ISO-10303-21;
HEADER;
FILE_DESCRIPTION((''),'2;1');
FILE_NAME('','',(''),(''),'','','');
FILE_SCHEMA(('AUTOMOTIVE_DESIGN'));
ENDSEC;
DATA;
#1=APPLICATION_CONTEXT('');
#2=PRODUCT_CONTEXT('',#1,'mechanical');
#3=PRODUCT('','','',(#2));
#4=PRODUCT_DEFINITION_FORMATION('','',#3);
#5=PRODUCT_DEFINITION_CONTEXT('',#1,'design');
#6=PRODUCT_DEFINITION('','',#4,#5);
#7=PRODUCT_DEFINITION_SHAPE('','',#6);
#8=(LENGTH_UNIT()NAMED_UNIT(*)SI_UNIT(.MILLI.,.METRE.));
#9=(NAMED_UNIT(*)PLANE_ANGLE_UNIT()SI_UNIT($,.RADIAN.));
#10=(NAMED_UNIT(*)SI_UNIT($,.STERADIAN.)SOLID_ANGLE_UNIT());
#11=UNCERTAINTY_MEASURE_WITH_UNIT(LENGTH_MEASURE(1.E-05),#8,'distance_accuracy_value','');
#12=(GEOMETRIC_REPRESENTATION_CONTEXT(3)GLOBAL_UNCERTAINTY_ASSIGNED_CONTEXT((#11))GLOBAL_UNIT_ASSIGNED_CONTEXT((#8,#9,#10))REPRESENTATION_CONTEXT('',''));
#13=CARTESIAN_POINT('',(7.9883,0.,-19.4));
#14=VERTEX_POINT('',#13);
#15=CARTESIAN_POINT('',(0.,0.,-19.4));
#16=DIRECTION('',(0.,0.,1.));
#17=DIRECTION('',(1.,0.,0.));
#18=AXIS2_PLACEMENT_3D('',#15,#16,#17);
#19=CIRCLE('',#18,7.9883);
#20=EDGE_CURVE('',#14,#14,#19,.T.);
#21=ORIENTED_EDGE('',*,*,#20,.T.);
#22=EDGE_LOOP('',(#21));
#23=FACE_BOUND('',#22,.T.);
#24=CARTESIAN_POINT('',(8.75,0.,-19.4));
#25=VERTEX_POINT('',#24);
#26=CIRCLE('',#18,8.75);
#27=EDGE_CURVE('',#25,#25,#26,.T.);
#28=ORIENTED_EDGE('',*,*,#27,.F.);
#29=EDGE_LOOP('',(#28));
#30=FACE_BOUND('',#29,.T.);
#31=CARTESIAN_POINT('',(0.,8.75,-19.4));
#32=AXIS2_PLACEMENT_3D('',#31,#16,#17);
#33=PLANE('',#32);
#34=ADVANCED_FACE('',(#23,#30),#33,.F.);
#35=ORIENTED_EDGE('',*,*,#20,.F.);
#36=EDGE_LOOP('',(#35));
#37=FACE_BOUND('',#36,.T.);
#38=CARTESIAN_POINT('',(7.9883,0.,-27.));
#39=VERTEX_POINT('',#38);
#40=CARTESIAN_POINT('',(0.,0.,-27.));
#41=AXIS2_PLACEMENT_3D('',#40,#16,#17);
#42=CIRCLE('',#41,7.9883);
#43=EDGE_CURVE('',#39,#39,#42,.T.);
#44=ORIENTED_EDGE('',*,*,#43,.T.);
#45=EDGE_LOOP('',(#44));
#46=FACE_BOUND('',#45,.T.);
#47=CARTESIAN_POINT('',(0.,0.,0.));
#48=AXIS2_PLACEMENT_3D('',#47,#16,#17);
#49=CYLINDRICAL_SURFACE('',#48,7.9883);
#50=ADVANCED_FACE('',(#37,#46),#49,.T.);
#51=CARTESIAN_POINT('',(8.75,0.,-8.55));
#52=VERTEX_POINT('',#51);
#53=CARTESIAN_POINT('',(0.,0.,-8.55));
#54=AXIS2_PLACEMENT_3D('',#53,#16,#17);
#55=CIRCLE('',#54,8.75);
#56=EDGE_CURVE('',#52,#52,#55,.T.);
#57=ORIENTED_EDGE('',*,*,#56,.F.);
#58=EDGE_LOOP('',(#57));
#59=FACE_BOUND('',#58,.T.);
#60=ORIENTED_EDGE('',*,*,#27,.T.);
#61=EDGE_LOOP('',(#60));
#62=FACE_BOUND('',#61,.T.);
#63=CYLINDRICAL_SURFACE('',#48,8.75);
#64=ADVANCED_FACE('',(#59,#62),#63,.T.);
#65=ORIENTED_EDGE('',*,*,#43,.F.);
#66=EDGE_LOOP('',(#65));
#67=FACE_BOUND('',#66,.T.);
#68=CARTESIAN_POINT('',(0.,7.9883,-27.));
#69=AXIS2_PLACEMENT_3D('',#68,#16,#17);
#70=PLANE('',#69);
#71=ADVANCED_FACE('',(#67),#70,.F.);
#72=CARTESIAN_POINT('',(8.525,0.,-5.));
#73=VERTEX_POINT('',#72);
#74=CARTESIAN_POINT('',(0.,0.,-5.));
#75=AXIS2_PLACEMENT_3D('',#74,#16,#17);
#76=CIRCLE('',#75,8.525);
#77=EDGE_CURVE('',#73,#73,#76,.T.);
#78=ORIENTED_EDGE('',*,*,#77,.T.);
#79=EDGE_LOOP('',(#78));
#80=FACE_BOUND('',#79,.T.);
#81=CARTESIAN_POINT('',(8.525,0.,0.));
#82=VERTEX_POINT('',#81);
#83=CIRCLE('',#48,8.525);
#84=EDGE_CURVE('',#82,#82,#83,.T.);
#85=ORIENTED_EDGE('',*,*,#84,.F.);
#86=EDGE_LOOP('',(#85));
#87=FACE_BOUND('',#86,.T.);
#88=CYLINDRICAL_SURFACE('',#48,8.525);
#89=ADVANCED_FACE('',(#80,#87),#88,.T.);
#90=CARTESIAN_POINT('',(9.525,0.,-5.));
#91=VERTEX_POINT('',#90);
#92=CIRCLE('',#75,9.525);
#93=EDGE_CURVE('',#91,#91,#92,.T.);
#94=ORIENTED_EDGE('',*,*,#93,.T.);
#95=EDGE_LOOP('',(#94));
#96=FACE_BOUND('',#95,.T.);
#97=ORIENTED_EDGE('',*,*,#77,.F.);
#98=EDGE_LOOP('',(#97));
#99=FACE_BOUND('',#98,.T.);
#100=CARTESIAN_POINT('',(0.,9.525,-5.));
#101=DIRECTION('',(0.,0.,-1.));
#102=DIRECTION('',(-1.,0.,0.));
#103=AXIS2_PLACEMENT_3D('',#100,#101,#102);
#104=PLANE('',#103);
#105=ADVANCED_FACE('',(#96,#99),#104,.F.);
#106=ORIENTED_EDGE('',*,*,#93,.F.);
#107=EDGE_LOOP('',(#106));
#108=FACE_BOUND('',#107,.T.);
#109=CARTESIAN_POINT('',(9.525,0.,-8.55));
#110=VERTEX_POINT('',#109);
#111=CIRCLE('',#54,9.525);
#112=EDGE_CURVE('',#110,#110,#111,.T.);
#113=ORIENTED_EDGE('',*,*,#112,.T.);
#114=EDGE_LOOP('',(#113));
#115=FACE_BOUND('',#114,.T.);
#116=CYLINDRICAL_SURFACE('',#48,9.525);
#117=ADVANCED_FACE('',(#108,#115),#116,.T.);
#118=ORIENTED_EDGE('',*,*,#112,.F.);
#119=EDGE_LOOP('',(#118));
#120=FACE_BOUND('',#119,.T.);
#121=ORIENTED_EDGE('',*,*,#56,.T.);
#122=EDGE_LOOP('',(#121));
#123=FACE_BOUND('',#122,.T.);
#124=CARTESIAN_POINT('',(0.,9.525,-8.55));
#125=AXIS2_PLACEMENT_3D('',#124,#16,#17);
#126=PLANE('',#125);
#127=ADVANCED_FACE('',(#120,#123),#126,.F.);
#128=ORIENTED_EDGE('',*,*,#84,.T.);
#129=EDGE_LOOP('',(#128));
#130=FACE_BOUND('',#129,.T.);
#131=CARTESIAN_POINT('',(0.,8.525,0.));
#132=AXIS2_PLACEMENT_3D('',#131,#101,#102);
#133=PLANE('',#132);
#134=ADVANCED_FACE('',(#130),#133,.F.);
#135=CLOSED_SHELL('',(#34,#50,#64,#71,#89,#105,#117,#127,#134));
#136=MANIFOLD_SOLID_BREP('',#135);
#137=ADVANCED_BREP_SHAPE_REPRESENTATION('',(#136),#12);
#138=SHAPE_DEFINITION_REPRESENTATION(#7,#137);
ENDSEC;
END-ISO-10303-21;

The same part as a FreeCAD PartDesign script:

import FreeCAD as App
import Part
import Sketcher

V = App.Vector
Q = App.Units.Quantity


def add_polygon(sketch, points):
    """Adds a closed chain of lines whose ends are joined by coincident constraints."""
    first, n = sketch.GeometryCount, len(points)
    for a, b in zip(points, points[1:] + points[:1]):
        sketch.addGeometry(Part.LineSegment(App.Vector(*a, 0), App.Vector(*b, 0)), False)
    for i in range(n):
        sketch.addConstraint(Sketcher.Constraint("Coincident", first + i, 2, first + (i + 1) % n, 1))

doc = App.newDocument("Part")
body = doc.addObject("PartDesign::Body", "Body")

# Sketch on YZ plane
sketch1 = doc.addObject("Sketcher::SketchObject", "Sketch")
body.addObject(sketch1)
sketch1.AttachmentSupport = (doc.YZ_Plane, [""])
sketch1.MapMode = "FlatFace"
add_polygon(sketch1, [(0, 0), (0, -27), (8, -27), (8, -19.4), (8.8, -19.4), (8.8, -8.6), (9.5, -8.6), (9.5, -5), (8.5, -5), (8.5, 0)])  # lines 0-9
sketch1.addConstraint(Sketcher.Constraint("Vertical", 0))
sketch1.addConstraint(Sketcher.Constraint("Horizontal", 1))
sketch1.addConstraint(Sketcher.Constraint("Vertical", 2))
sketch1.addConstraint(Sketcher.Constraint("Horizontal", 3))
sketch1.addConstraint(Sketcher.Constraint("Vertical", 4))
sketch1.addConstraint(Sketcher.Constraint("Horizontal", 5))
sketch1.addConstraint(Sketcher.Constraint("Vertical", 6))
sketch1.addConstraint(Sketcher.Constraint("Horizontal", 7))
sketch1.addConstraint(Sketcher.Constraint("Vertical", 8))
sketch1.addConstraint(Sketcher.Constraint("Horizontal", 9))
sketch1.addConstraint(Sketcher.Constraint("Coincident", 9, 2, -1, 1))
sketch1.addConstraint(Sketcher.Constraint("DistanceX", 7, 2, 7, 1, Q("1 mm")))
sketch1.addConstraint(Sketcher.Constraint("DistanceY", 0, 2, 0, 1, Q("27 mm")))
sketch1.addConstraint(Sketcher.Constraint("DistanceY", 8, 1, 8, 2, Q("5 mm")))
sketch1.addConstraint(Sketcher.Constraint("DistanceY", 2, 1, 2, 2, Q("7.6 mm")))
sketch1.addConstraint(Sketcher.Constraint("DistanceY", 4, 1, 4, 2, Q("10.85 mm")))
sketch1.addConstraint(Sketcher.Constraint("DistanceX", 5, 1, 5, 2, Q("0.775 mm")))
sketch1.addConstraint(Sketcher.Constraint("DistanceX", 9, 2, 9, 1, Q("8.525 mm")))
sketch1.addConstraint(Sketcher.Constraint("DistanceX", 1, 1, 1, 2, Q("7.9883 mm")))
revolution = doc.addObject("PartDesign::Revolution", "Revolution")
body.addObject(revolution)
revolution.Profile = sketch1
revolution.ReferenceAxis = (sketch1, ["V_Axis"])
revolution.Angle = 360

doc.recompute()
